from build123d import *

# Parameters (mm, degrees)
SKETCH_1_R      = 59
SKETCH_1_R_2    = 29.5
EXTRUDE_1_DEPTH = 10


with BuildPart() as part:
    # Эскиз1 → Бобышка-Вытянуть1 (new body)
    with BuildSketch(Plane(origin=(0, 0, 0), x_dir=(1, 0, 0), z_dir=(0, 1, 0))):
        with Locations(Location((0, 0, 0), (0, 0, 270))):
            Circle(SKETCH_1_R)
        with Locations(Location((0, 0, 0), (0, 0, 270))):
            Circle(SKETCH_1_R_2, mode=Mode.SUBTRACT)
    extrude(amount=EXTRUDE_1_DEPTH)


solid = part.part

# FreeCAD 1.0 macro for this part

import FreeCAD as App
import Part
import Sketcher
from FreeCAD import Vector
Q = App.Units.Quantity

doc = App.newDocument("Part")
body = doc.addObject("PartDesign::Body", "Body")

# Sketch on XZ plane
sketch1 = doc.addObject("Sketcher::SketchObject", "Sketch")
body.addObject(sketch1)
sketch1.AttachmentSupport = (doc.XZ_Plane, [""])
sketch1.MapMode = "FlatFace"
sketch1.addGeometry([
    Part.Circle(Vector(0, 0, 0), Vector(0, 0, 1), 59),
    Part.Circle(Vector(0, 0, 0), Vector(0, 0, 1), 29.5),
], False)
sketch1.addConstraint([
    Sketcher.Constraint("Coincident", 0, 3, -1, 1),
    Sketcher.Constraint("Coincident", 1, 3, -1, 1),
    Sketcher.Constraint("Diameter", 0, Q("118 mm")),
    Sketcher.Constraint("Diameter", 1, Q("59 mm")),
])
pad1 = doc.addObject("PartDesign::Pad", "Pad")
body.addObject(pad1)
pad1.Profile = sketch1
pad1.Length = 10
pad1.Reversed = True

doc.recompute()
